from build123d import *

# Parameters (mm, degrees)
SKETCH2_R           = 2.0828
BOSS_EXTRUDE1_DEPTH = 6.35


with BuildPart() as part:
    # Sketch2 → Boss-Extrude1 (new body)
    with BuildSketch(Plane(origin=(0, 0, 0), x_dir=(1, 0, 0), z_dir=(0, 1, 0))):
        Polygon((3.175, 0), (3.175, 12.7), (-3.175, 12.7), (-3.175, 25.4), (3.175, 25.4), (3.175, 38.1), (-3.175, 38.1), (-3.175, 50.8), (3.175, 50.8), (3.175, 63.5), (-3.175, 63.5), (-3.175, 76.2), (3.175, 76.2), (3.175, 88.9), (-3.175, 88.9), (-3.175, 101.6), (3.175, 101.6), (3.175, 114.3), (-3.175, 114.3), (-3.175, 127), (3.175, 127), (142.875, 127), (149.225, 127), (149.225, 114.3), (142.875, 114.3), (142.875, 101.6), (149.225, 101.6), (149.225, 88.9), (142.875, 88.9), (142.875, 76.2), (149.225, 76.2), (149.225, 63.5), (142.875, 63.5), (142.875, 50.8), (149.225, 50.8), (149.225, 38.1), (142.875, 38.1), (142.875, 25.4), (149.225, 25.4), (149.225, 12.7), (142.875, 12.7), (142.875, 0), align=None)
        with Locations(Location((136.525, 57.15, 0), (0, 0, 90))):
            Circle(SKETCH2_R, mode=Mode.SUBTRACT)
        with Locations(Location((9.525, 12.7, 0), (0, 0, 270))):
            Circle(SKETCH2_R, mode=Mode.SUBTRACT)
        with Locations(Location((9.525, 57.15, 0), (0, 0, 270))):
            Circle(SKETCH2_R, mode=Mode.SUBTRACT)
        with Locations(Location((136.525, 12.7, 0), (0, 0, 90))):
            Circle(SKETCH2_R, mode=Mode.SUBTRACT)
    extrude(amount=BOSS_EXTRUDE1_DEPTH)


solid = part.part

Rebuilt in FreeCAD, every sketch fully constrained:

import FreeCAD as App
import Part
import Sketcher

V = App.Vector
Q = App.Units.Quantity

doc = App.newDocument("Part")
body = doc.addObject("PartDesign::Body", "Body")

# Sketch on XZ plane
sketch1 = doc.addObject("Sketcher::SketchObject", "Sketch")
body.addObject(sketch1)
sketch1.AttachmentSupport = (doc.XZ_Plane, [""])
sketch1.MapMode = "FlatFace"
sketch1.addGeometry(Part.LineSegment(V(3.2, -12.7, 0), V(3.2, 0, 0)), False)
sketch1.addGeometry(Part.LineSegment(V(3.2, 0, 0), V(142.9, 0, 0)), False)
sketch1.addGeometry(Part.LineSegment(V(142.9, 0, 0), V(142.9, -12.7, 0)), False)
sketch1.addGeometry(Part.LineSegment(V(142.9, -12.7, 0), V(149.2, -12.7, 0)), False)
sketch1.addGeometry(Part.LineSegment(V(149.2, -12.7, 0), V(149.2, -25.4, 0)), False)
sketch1.addGeometry(Part.LineSegment(V(149.2, -25.4, 0), V(142.9, -25.4, 0)), False)
sketch1.addGeometry(Part.LineSegment(V(142.9, -25.4, 0), V(142.9, -38.1, 0)), False)
sketch1.addGeometry(Part.LineSegment(V(142.9, -38.1, 0), V(149.2, -38.1, 0)), False)
sketch1.addGeometry(Part.LineSegment(V(149.2, -38.1, 0), V(149.2, -50.8, 0)), False)
sketch1.addGeometry(Part.LineSegment(V(149.2, -50.8, 0), V(142.9, -50.8, 0)), False)
sketch1.addGeometry(Part.LineSegment(V(142.9, -50.8, 0), V(142.9, -63.5, 0)), False)
sketch1.addGeometry(Part.LineSegment(V(142.9, -63.5, 0), V(149.2, -63.5, 0)), False)
sketch1.addGeometry(Part.LineSegment(V(149.2, -63.5, 0), V(149.2, -76.2, 0)), False)
sketch1.addGeometry(Part.LineSegment(V(149.2, -76.2, 0), V(142.9, -76.2, 0)), False)
sketch1.addGeometry(Part.LineSegment(V(142.9, -76.2, 0), V(142.9, -88.9, 0)), False)
sketch1.addGeometry(Part.LineSegment(V(142.9, -88.9, 0), V(149.2, -88.9, 0)), False)
sketch1.addGeometry(Part.LineSegment(V(149.2, -88.9, 0), V(149.2, -101.6, 0)), False)
sketch1.addGeometry(Part.LineSegment(V(149.2, -101.6, 0), V(142.9, -101.6, 0)), False)
sketch1.addGeometry(Part.LineSegment(V(142.9, -101.6, 0), V(142.9, -114.3, 0)), False)
sketch1.addGeometry(Part.LineSegment(V(142.9, -114.3, 0), V(149.2, -114.3, 0)), False)
sketch1.addGeometry(Part.LineSegment(V(149.2, -114.3, 0), V(149.2, -127, 0)), False)
sketch1.addGeometry(Part.LineSegment(V(149.2, -127, 0), V(-3.2, -127, 0)), False)
sketch1.addGeometry(Part.LineSegment(V(-3.2, -127, 0), V(-3.2, -114.3, 0)), False)
sketch1.addGeometry(Part.LineSegment(V(-3.2, -114.3, 0), V(3.2, -114.3, 0)), False)
sketch1.addGeometry(Part.LineSegment(V(3.2, -114.3, 0), V(3.2, -101.6, 0)), False)
sketch1.addGeometry(Part.LineSegment(V(3.2, -101.6, 0), V(-3.2, -101.6, 0)), False)
sketch1.addGeometry(Part.LineSegment(V(-3.2, -101.6, 0), V(-3.2, -88.9, 0)), False)
sketch1.addGeometry(Part.LineSegment(V(-3.2, -88.9, 0), V(3.2, -88.9, 0)), False)
sketch1.addGeometry(Part.LineSegment(V(3.2, -88.9, 0), V(3.2, -76.2, 0)), False)
sketch1.addGeometry(Part.LineSegment(V(3.2, -76.2, 0), V(-3.2, -76.2, 0)), False)
sketch1.addGeometry(Part.LineSegment(V(-3.2, -76.2, 0), V(-3.2, -63.5, 0)), False)
sketch1.addGeometry(Part.LineSegment(V(-3.2, -63.5, 0), V(3.2, -63.5, 0)), False)
sketch1.addGeometry(Part.LineSegment(V(3.2, -63.5, 0), V(3.2, -50.8, 0)), False)
sketch1.addGeometry(Part.LineSegment(V(3.2, -50.8, 0), V(-3.2, -50.8, 0)), False)
sketch1.addGeometry(Part.LineSegment(V(-3.2, -50.8, 0), V(-3.2, -38.1, 0)), False)
sketch1.addGeometry(Part.LineSegment(V(-3.2, -38.1, 0), V(3.2, -38.1, 0)), False)
sketch1.addGeometry(Part.LineSegment(V(3.2, -38.1, 0), V(3.2, -25.4, 0)), False)
sketch1.addGeometry(Part.LineSegment(V(3.2, -25.4, 0), V(-3.2, -25.4, 0)), False)
sketch1.addGeometry(Part.LineSegment(V(-3.2, -25.4, 0), V(-3.2, -12.7, 0)), False)
sketch1.addGeometry(Part.LineSegment(V(-3.2, -12.7, 0), V(3.2, -12.7, 0)), False)
sketch1.addGeometry(Part.Circle(V(136.5, -12.7, 0), V(0, 0, 1), 2.1), False)
sketch1.addGeometry(Part.Circle(V(9.5, -12.7, 0), V(0, 0, 1), 2.1), False)
sketch1.addGeometry(Part.Circle(V(136.5, -57.1, 0), V(0, 0, 1), 2.1), False)
sketch1.addGeometry(Part.Circle(V(9.5, -57.1, 0), V(0, 0, 1), 2.1), False)
sketch1.addConstraint(Sketcher.Constraint("Coincident", 0, 2, 1, 1))
sketch1.addConstraint(Sketcher.Constraint("Coincident", 1, 2, 2, 1))
sketch1.addConstraint(Sketcher.Constraint("Coincident", 2, 2, 3, 1))
sketch1.addConstraint(Sketcher.Constraint("Coincident", 3, 2, 4, 1))
sketch1.addConstraint(Sketcher.Constraint("Coincident", 4, 2, 5, 1))
sketch1.addConstraint(Sketcher.Constraint("Coincident", 5, 2, 6, 1))
sketch1.addConstraint(Sketcher.Constraint("Coincident", 6, 2, 7, 1))
sketch1.addConstraint(Sketcher.Constraint("Coincident", 7, 2, 8, 1))
sketch1.addConstraint(Sketcher.Constraint("Coincident", 8, 2, 9, 1))
sketch1.addConstraint(Sketcher.Constraint("Coincident", 9, 2, 10, 1))
sketch1.addConstraint(Sketcher.Constraint("Coincident", 10, 2, 11, 1))
sketch1.addConstraint(Sketcher.Constraint("Coincident", 11, 2, 12, 1))
sketch1.addConstraint(Sketcher.Constraint("Coincident", 12, 2, 13, 1))
sketch1.addConstraint(Sketcher.Constraint("Coincident", 13, 2, 14, 1))
sketch1.addConstraint(Sketcher.Constraint("Coincident", 14, 2, 15, 1))
sketch1.addConstraint(Sketcher.Constraint("Coincident", 15, 2, 16, 1))
sketch1.addConstraint(Sketcher.Constraint("Coincident", 16, 2, 17, 1))
sketch1.addConstraint(Sketcher.Constraint("Coincident", 17, 2, 18, 1))
sketch1.addConstraint(Sketcher.Constraint("Coincident", 18, 2, 19, 1))
sketch1.addConstraint(Sketcher.Constraint("Coincident", 19, 2, 20, 1))
sketch1.addConstraint(Sketcher.Constraint("Coincident", 20, 2, 21, 1))
sketch1.addConstraint(Sketcher.Constraint("Coincident", 21, 2, 22, 1))
sketch1.addConstraint(Sketcher.Constraint("Coincident", 22, 2, 23, 1))
sketch1.addConstraint(Sketcher.Constraint("Coincident", 23, 2, 24, 1))
sketch1.addConstraint(Sketcher.Constraint("Coincident", 24, 2, 25, 1))
sketch1.addConstraint(Sketcher.Constraint("Coincident", 25, 2, 26, 1))
sketch1.addConstraint(Sketcher.Constraint("Coincident", 26, 2, 27, 1))
sketch1.addConstraint(Sketcher.Constraint("Coincident", 27, 2, 28, 1))
sketch1.addConstraint(Sketcher.Constraint("Coincident", 28, 2, 29, 1))
sketch1.addConstraint(Sketcher.Constraint("Coincident", 29, 2, 30, 1))
sketch1.addConstraint(Sketcher.Constraint("Coincident", 30, 2, 31, 1))
sketch1.addConstraint(Sketcher.Constraint("Coincident", 31, 2, 32, 1))
sketch1.addConstraint(Sketcher.Constraint("Coincident", 32, 2, 33, 1))
sketch1.addConstraint(Sketcher.Constraint("Coincident", 33, 2, 34, 1))
sketch1.addConstraint(Sketcher.Constraint("Coincident", 34, 2, 35, 1))
sketch1.addConstraint(Sketcher.Constraint("Coincident", 35, 2, 36, 1))
sketch1.addConstraint(Sketcher.Constraint("Coincident", 36, 2, 37, 1))
sketch1.addConstraint(Sketcher.Constraint("Coincident", 37, 2, 38, 1))
sketch1.addConstraint(Sketcher.Constraint("Coincident", 38, 2, 39, 1))
sketch1.addConstraint(Sketcher.Constraint("Coincident", 39, 2, 0, 1))
sketch1.addConstraint(Sketcher.Constraint("Vertical", 0))
sketch1.addConstraint(Sketcher.Constraint("Horizontal", 1))
sketch1.addConstraint(Sketcher.Constraint("Vertical", 2))
sketch1.addConstraint(Sketcher.Constraint("Horizontal", 3))
sketch1.addConstraint(Sketcher.Constraint("Vertical", 4))
sketch1.addConstraint(Sketcher.Constraint("Horizontal", 5))
sketch1.addConstraint(Sketcher.Constraint("Vertical", 6))
sketch1.addConstraint(Sketcher.Constraint("Horizontal", 7))
sketch1.addConstraint(Sketcher.Constraint("Vertical", 8))
sketch1.addConstraint(Sketcher.Constraint("Horizontal", 9))
sketch1.addConstraint(Sketcher.Constraint("Vertical", 10))
sketch1.addConstraint(Sketcher.Constraint("Horizontal", 11))
sketch1.addConstraint(Sketcher.Constraint("Vertical", 12))
sketch1.addConstraint(Sketcher.Constraint("Horizontal", 13))
sketch1.addConstraint(Sketcher.Constraint("Vertical", 14))
sketch1.addConstraint(Sketcher.Constraint("Horizontal", 15))
sketch1.addConstraint(Sketcher.Constraint("Vertical", 16))
sketch1.addConstraint(Sketcher.Constraint("Horizontal", 17))
sketch1.addConstraint(Sketcher.Constraint("Vertical", 18))
sketch1.addConstraint(Sketcher.Constraint("Horizontal", 19))
sketch1.addConstraint(Sketcher.Constraint("Vertical", 20))
sketch1.addConstraint(Sketcher.Constraint("Horizontal", 21))
sketch1.addConstraint(Sketcher.Constraint("Vertical", 22))
sketch1.addConstraint(Sketcher.Constraint("Horizontal", 23))
sketch1.addConstraint(Sketcher.Constraint("Vertical", 24))
sketch1.addConstraint(Sketcher.Constraint("Horizontal", 25))
sketch1.addConstraint(Sketcher.Constraint("Vertical", 26))
sketch1.addConstraint(Sketcher.Constraint("Horizontal", 27))
sketch1.addConstraint(Sketcher.Constraint("Vertical", 28))
sketch1.addConstraint(Sketcher.Constraint("Horizontal", 29))
sketch1.addConstraint(Sketcher.Constraint("Vertical", 30))
sketch1.addConstraint(Sketcher.Constraint("Horizontal", 31))
sketch1.addConstraint(Sketcher.Constraint("Vertical", 32))
sketch1.addConstraint(Sketcher.Constraint("Horizontal", 33))
sketch1.addConstraint(Sketcher.Constraint("Vertical", 34))
sketch1.addConstraint(Sketcher.Constraint("Horizontal", 35))
sketch1.addConstraint(Sketcher.Constraint("Vertical", 36))
sketch1.addConstraint(Sketcher.Constraint("Horizontal", 37))
sketch1.addConstraint(Sketcher.Constraint("Vertical", 38))
sketch1.addConstraint(Sketcher.Constraint("Horizontal", 39))
sketch1.addConstraint(Sketcher.Constraint("Equal", 40, 41))
sketch1.addConstraint(Sketcher.Constraint("Equal", 41, 42))
sketch1.addConstraint(Sketcher.Constraint("Equal", 42, 43))
sketch1.addConstraint(Sketcher.Constraint("PointOnObject", 0, 2, -1))
sketch1.addConstraint(Sketcher.Constraint("Horizontal", 40, 3, 41, 3))
sketch1.addConstraint(Sketcher.Constraint("Horizontal", 42, 3, 43, 3))
sketch1.addConstraint(Sketcher.Constraint("Horizontal", 41, 3, 2, 2))
sketch1.addConstraint(Sketcher.Constraint("Horizontal", 19, 2, 22, 2))
sketch1.addConstraint(Sketcher.Constraint("Horizontal", 17, 2, 24, 2))
sketch1.addConstraint(Sketcher.Constraint("Horizontal", 15, 2, 26, 2))
sketch1.addConstraint(Sketcher.Constraint("Horizontal", 13, 2, 28, 2))
sketch1.addConstraint(Sketcher.Constraint("Horizontal", 11, 2, 30, 2))
sketch1.addConstraint(Sketcher.Constraint("Horizontal", 9, 2, 32, 2))
sketch1.addConstraint(Sketcher.Constraint("Horizontal", 7, 2, 34, 2))
sketch1.addConstraint(Sketcher.Constraint("Horizontal", 5, 2, 36, 2))
sketch1.addConstraint(Sketcher.Constraint("Horizontal", 3, 2, 38, 2))
sketch1.addConstraint(Sketcher.Constraint("Vertical", 40, 3, 42, 3))
sketch1.addConstraint(Sketcher.Constraint("Vertical", 41, 3, 43, 3))
sketch1.addConstraint(Sketcher.Constraint("Vertical", 2, 2, 5, 2))
sketch1.addConstraint(Sketcher.Constraint("Vertical", 4, 2, 7, 2))
sketch1.addConstraint(Sketcher.Constraint("Vertical", 6, 2, 9, 2))
sketch1.addConstraint(Sketcher.Constraint("Vertical", 8, 2, 11, 2))
sketch1.addConstraint(Sketcher.Constraint("Vertical", 10, 2, 13, 2))
sketch1.addConstraint(Sketcher.Constraint("Vertical", 12, 2, 15, 2))
sketch1.addConstraint(Sketcher.Constraint("Vertical", 14, 2, 17, 2))
sketch1.addConstraint(Sketcher.Constraint("Vertical", 16, 2, 19, 2))
sketch1.addConstraint(Sketcher.Constraint("Vertical", 0, 2, 23, 2))
sketch1.addConstraint(Sketcher.Constraint("Vertical", 22, 2, 25, 2))
sketch1.addConstraint(Sketcher.Constraint("Vertical", 24, 2, 27, 2))
sketch1.addConstraint(Sketcher.Constraint("Vertical", 26, 2, 29, 2))
sketch1.addConstraint(Sketcher.Constraint("Vertical", 28, 2, 31, 2))
sketch1.addConstraint(Sketcher.Constraint("Vertical", 30, 2, 33, 2))
sketch1.addConstraint(Sketcher.Constraint("Vertical", 32, 2, 35, 2))
sketch1.addConstraint(Sketcher.Constraint("Vertical", 34, 2, 37, 2))
sketch1.addConstraint(Sketcher.Constraint("Equal", 19, 23))
sketch1.addConstraint(Sketcher.Constraint("Equal", 2, 4))
sketch1.addConstraint(Sketcher.Constraint("Equal", 4, 6))
sketch1.addConstraint(Sketcher.Constraint("Equal", 6, 8))
sketch1.addConstraint(Sketcher.Constraint("Equal", 8, 10))
sketch1.addConstraint(Sketcher.Constraint("Equal", 10, 12))
sketch1.addConstraint(Sketcher.Constraint("Equal", 12, 14))
sketch1.addConstraint(Sketcher.Constraint("Equal", 14, 16))
sketch1.addConstraint(Sketcher.Constraint("Equal", 16, 18))
sketch1.addConstraint(Sketcher.Constraint("Equal", 18, 20))
sketch1.addConstraint(Sketcher.Constraint("DistanceX", 21, 2, 21, 1, Q("6 in")))
sketch1.addConstraint(Sketcher.Constraint("Diameter", 40, Q("0.164 in")))
sketch1.addConstraint(Sketcher.Constraint("DistanceX", 1, 1, 1, 2, Q("5.5 in")))
sketch1.addConstraint(Sketcher.Constraint("DistanceY", 0, 1, 0, 2, Q("0.5 in")))
sketch1.addConstraint(Sketcher.Constraint("DistanceX", 41, 3, 40, 3, Q("5 in")))
sketch1.addConstraint(Sketcher.Constraint("DistanceX", 40, 3, 3, 2, Q("0.5 in")))
sketch1.addConstraint(Sketcher.Constraint("DistanceY", 42, 3, -1, 1, Q("2.25 in")))
sketch1.addConstraint(Sketcher.Constraint("DistanceX", -1, 1, 40, 3, Q("5.375 in")))
pad1 = doc.addObject("PartDesign::Pad", "Pad")
body.addObject(pad1)
pad1.Profile = sketch1
pad1.Length = Q("0.25 in")
pad1.Reversed = True

doc.recompute()
